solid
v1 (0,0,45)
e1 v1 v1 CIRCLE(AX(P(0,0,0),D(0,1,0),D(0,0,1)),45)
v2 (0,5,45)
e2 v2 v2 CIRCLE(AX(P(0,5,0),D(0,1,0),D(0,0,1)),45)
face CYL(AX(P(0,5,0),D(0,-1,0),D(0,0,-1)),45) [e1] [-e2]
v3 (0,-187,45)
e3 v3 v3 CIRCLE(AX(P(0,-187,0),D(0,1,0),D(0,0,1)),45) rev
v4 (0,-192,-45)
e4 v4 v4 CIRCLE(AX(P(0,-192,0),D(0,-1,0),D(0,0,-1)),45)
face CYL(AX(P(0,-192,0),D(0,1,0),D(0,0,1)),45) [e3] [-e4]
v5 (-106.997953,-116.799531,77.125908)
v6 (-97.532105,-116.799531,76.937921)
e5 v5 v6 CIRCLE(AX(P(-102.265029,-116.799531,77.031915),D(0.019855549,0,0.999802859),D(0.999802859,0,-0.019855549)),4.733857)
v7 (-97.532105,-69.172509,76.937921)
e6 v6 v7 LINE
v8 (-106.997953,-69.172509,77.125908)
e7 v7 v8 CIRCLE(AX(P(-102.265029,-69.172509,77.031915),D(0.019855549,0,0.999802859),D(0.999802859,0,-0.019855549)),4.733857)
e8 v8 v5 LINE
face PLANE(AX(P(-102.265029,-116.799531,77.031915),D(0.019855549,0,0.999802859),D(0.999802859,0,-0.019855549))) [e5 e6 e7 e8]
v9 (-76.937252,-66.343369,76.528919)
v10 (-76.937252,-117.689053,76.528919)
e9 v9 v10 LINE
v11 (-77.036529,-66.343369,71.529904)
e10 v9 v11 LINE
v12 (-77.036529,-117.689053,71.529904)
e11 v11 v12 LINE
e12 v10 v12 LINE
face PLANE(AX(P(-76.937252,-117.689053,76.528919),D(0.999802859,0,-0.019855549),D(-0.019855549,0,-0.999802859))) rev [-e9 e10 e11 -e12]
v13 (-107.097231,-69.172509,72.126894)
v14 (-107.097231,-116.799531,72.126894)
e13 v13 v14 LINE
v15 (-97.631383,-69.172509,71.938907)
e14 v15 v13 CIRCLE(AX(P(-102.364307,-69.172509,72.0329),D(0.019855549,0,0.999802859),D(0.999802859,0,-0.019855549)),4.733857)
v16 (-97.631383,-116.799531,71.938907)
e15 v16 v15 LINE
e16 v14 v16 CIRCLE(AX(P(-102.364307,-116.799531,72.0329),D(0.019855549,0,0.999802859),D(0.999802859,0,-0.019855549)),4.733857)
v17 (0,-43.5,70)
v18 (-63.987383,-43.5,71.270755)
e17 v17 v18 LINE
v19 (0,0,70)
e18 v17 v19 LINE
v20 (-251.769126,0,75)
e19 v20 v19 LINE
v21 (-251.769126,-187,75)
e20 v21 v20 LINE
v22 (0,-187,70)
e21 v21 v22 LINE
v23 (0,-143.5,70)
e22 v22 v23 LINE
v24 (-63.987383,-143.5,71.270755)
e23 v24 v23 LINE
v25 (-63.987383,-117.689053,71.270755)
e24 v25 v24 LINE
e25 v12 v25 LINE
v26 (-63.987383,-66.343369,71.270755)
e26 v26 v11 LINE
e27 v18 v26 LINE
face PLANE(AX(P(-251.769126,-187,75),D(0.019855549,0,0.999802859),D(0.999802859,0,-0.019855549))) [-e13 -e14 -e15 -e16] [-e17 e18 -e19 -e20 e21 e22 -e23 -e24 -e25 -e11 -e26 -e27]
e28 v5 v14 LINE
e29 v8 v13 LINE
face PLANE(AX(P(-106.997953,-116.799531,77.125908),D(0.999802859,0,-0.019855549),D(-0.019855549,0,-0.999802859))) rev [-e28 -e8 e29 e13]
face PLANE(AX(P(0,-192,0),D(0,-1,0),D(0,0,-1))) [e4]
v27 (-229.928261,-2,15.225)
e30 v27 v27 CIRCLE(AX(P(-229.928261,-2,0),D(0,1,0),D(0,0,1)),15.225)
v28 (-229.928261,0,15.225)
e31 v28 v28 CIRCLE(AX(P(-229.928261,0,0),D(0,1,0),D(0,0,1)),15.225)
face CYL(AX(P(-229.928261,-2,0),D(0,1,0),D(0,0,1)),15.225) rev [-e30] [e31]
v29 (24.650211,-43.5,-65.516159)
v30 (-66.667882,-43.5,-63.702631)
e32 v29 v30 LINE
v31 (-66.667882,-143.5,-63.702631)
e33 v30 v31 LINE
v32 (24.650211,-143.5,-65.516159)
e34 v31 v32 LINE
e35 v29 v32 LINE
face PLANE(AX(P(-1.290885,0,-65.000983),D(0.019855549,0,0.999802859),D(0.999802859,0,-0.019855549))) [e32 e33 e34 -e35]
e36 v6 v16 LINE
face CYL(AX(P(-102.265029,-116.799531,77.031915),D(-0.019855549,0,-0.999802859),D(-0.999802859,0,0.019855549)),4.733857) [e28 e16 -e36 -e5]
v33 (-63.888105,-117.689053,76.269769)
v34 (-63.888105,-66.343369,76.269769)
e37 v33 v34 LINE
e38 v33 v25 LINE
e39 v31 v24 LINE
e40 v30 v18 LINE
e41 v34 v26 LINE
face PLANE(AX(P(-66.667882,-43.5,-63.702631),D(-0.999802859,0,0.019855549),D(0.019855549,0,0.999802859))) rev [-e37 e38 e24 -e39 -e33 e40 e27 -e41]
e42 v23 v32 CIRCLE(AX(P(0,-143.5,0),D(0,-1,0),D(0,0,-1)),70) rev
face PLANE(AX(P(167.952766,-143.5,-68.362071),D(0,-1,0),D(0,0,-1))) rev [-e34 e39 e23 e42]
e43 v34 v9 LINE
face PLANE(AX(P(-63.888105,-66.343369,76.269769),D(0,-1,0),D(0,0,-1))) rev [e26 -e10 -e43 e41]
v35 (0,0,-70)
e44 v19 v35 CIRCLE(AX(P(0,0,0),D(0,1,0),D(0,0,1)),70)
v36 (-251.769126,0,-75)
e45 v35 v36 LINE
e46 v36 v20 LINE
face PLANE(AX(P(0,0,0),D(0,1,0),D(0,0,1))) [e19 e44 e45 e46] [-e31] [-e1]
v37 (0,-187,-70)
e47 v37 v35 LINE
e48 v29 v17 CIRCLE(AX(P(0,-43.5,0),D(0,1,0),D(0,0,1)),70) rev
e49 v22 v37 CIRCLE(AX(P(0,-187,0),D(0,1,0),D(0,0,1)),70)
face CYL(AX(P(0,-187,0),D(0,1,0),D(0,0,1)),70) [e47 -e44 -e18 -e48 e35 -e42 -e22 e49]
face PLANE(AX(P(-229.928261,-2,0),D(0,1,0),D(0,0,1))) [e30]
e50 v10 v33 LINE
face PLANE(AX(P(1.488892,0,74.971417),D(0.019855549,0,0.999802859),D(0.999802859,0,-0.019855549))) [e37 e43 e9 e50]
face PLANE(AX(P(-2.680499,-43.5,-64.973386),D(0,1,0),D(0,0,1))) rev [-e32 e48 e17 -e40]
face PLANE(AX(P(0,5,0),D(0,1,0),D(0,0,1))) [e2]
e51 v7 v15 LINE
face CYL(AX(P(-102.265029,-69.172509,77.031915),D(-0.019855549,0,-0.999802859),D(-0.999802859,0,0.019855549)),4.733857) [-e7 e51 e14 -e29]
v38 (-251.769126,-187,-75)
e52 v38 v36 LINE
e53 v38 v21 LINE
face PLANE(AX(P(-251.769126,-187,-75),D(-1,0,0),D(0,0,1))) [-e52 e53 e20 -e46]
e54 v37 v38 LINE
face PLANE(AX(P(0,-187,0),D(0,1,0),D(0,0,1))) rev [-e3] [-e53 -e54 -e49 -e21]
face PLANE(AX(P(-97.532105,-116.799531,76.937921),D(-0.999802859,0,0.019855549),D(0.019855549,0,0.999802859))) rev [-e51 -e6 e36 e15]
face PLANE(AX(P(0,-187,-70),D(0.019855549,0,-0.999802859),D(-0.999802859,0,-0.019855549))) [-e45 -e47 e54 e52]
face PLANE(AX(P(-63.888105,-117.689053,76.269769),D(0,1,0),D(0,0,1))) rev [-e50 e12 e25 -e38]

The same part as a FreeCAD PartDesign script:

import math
import FreeCAD as App
import Part
import Sketcher
from FreeCAD import Vector
Q = App.Units.Quantity


def add_polygon(sketch, points):
    """Adds a closed chain of lines whose ends are joined by coincident constraints."""
    first, n = sketch.GeometryCount, len(points)
    for a, b in zip(points, points[1:] + points[:1]):
        sketch.addGeometry(Part.LineSegment(App.Vector(*a, 0), App.Vector(*b, 0)), False)
    for i in range(n):
        sketch.addConstraint(Sketcher.Constraint("Coincident", first + i, 2, first + (i + 1) % n, 1))

doc = App.newDocument("Part")
body = doc.addObject("PartDesign::Body", "Body")

sketch1 = body.newObject("Sketcher::SketchObject", "Sketch")
sketch1.AttachmentSupport = (doc.getObject("XZ_Plane"), [""])
sketch1.MapMode = "FlatFace"
sketch1.addGeometry(Part.LineSegment(Vector(0, -70, 0), Vector(-252, -75, 0)), False)
sketch1.addGeometry(Part.LineSegment(Vector(-252, -75, 0), Vector(-252, 75, 0)), False)
sketch1.addGeometry(Part.LineSegment(Vector(-252, 75, 0), Vector(0, 70, 0)), False)
sketch1.addGeometry(Part.ArcOfCircle(Part.Circle(Vector(0, 0, 0), Vector(0, 0, 1), 70), math.radians(-90), math.radians(90)), False)
sketch1.addConstraint(Sketcher.Constraint("Coincident", 0, 2, 1, 1))
sketch1.addConstraint(Sketcher.Constraint("Coincident", 1, 2, 2, 1))
sketch1.addConstraint(Sketcher.Constraint("Coincident", 2, 2, 3, 2))
sketch1.addConstraint(Sketcher.Constraint("Coincident", 3, 1, 0, 1))
sketch1.addConstraint(Sketcher.Constraint("Vertical", 1))
sketch1.addConstraint(Sketcher.Constraint("Coincident", 3, 3, -1, 1))
sketch1.addConstraint(Sketcher.Constraint("PointOnObject", 2, 2, -2))
sketch1.addConstraint(Sketcher.Constraint("PointOnObject", 3, 1, -2))
sketch1.addConstraint(Sketcher.Constraint("Equal", 0, 2))
sketch1.addConstraint(Sketcher.Constraint("Radius", 3, Q("70 mm")))
sketch1.addConstraint(Sketcher.Constraint("DistanceY", 1, 1, 1, 2, Q("150 mm")))
sketch1.addConstraint(Sketcher.Constraint("Distance", 0, Q("251.818769 mm")))
pad1 = body.newObject("PartDesign::Pad", "Pad")
pad1.Profile = sketch1
pad1.Length = 187

sketch2 = body.newObject("Sketcher::SketchObject", "Sketch001")
sketch2.Placement = App.Placement(Vector(1.389614, 0, 69.972403), App.Rotation(Vector(0.999802859, 0, -0.019855549), Vector(0, 1, 0), Vector(0.019855549, 0, 0.999802859), "ZXY"))
add_polygon(sketch2, [(169, -43), (-65, -43), (-65, -143), (169, -143)])
sketch2.addConstraint(Sketcher.Constraint("Horizontal", 0))
sketch2.addConstraint(Sketcher.Constraint("Vertical", 1))
sketch2.addConstraint(Sketcher.Constraint("Horizontal", 2))
sketch2.addConstraint(Sketcher.Constraint("Vertical", 3))
sketch2.addConstraint(Sketcher.Constraint("DistanceY", 1, 2, 1, 1, Q("100 mm")))
sketch2.addConstraint(Sketcher.Constraint("DistanceY", 0, 2, -1, 1, Q("43.5 mm")))
sketch2.addConstraint(Sketcher.Constraint("DistanceX", 0, 2, 0, 1, Q("234.666911 mm")))
sketch2.addConstraint(Sketcher.Constraint("DistanceX", 0, 2, -1, 1, Q("65.389888 mm")))
pocket1 = body.newObject("PartDesign::Pocket", "Pocket")
pocket1.Profile = sketch2
pocket1.Length = 135

sketch3 = body.newObject("Sketcher::SketchObject", "Sketch002")
sketch3.Placement = App.Placement(Vector(-1.290885, 0, -65.000983), App.Rotation(Vector(0.999802859, 0, -0.019855549), Vector(0, 1, 0), Vector(0.019855549, 0, 0.999802859), "ZXY"))
add_polygon(sketch3, [(-65, -43), (-65, -143), (144, -143), (144, -43)])
sketch3.addConstraint(Sketcher.Constraint("Vertical", 0))
sketch3.addConstraint(Sketcher.Constraint("Horizontal", 1))
sketch3.addConstraint(Sketcher.Constraint("Vertical", 2))
sketch3.addConstraint(Sketcher.Constraint("Horizontal", 3))
sketch3.addConstraint(Sketcher.Constraint("DistanceY", 0, 2, 0, 1, Q("100 mm")))
sketch3.addConstraint(Sketcher.Constraint("DistanceY", 0, 2, -1, 1, Q("143.5 mm")))
sketch3.addConstraint(Sketcher.Constraint("DistanceX", 1, 1, 1, 2, Q("208.903758 mm")))
sketch3.addConstraint(Sketcher.Constraint("DistanceX", 0, 2, -1, 1, Q("65.389888 mm")))
pocket2 = body.newObject("PartDesign::Pocket", "Pocket001")
pocket2.Profile = sketch3
pocket2.Length = 175
pocket2.Reversed = True

sketch4 = body.newObject("Sketcher::SketchObject", "Sketch003")
sketch4.AttachmentSupport = (doc.getObject("XZ_Plane"), [""])
sketch4.MapMode = "FlatFace"
sketch4.addGeometry(Part.Circle(Vector(0, 0, 0), Vector(0, 0, 1), 45), False)
sketch4.addConstraint(Sketcher.Constraint("Coincident", 0, 3, -1, 1))
sketch4.addConstraint(Sketcher.Constraint("Diameter", 0, Q("90 mm")))
pad2 = body.newObject("PartDesign::Pad", "Pad001")
pad2.Profile = sketch4
pad2.Length = 5
pad2.Reversed = True

sketch5 = body.newObject("Sketcher::SketchObject", "Sketch004")
sketch5.AttachmentSupport = (doc.getObject("XZ_Plane"), [""])
sketch5.MapMode = "FlatFace"
sketch5.AttachmentOffset = App.Placement(Vector(0, 0, 192), App.Rotation())
sketch5.addGeometry(Part.Circle(Vector(0, 0, 0), Vector(0, 0, 1), 45), False)
sketch5.addConstraint(Sketcher.Constraint("Coincident", 0, 3, -1, 1))
sketch5.addConstraint(Sketcher.Constraint("Diameter", 0, Q("90 mm")))
pad3 = body.newObject("PartDesign::Pad", "Pad002")
pad3.Profile = sketch5
pad3.Length = 5
pad3.Reversed = True

sketch6 = body.newObject("Sketcher::SketchObject", "Sketch005")
sketch6.Placement = App.Placement(Vector(1.389614, 0, 69.972403), App.Rotation(Vector(0.999802859, 0, -0.019855549), Vector(0, 1, 0), Vector(0.019855549, 0, 0.999802859), "ZXY"))
add_polygon(sketch6, [(-78, -66), (-78, -118), (-65, -118), (-65, -66)])
sketch6.addConstraint(Sketcher.Constraint("Vertical", 0))
sketch6.addConstraint(Sketcher.Constraint("Horizontal", 1))
sketch6.addConstraint(Sketcher.Constraint("Vertical", 2))
sketch6.addConstraint(Sketcher.Constraint("Horizontal", 3))
sketch6.addConstraint(Sketcher.Constraint("DistanceX", 1, 1, 1, 2, Q("13.051719 mm")))
sketch6.addConstraint(Sketcher.Constraint("DistanceY", 0, 2, 0, 1, Q("51.345684 mm")))
sketch6.addConstraint(Sketcher.Constraint("DistanceX", 1, 2, -1, 1, Q("65.389888 mm")))
sketch6.addConstraint(Sketcher.Constraint("DistanceY", 2, 2, -1, 1, Q("66.343369 mm")))
pad4 = body.newObject("PartDesign::Pad", "Pad003")
pad4.Profile = sketch6
pad4.Length = 5

sketch7 = body.newObject("Sketcher::SketchObject", "Sketch006")
sketch7.Placement = App.Placement(Vector(1.389614, 0, 69.972403), App.Rotation(Vector(0.999802859, 0, -0.019855549), Vector(0, 1, 0), Vector(0.019855549, 0, 0.999802859), "ZXY"))
sketch7.addGeometry(Part.LineSegment(Vector(-108.5, -69.2, 0), Vector(-108.5, -116.8, 0)), False)
sketch7.addGeometry(Part.ArcOfCircle(Part.Circle(Vector(-103.8, -116.8, 0), Vector(0, 0, 1), 4.7), math.radians(180), math.radians(360)), False)
sketch7.addGeometry(Part.LineSegment(Vector(-99, -116.8, 0), Vector(-99, -69.2, 0)), False)
sketch7.addGeometry(Part.ArcOfCircle(Part.Circle(Vector(-103.8, -69.2, 0), Vector(0, 0, 1), 4.7), math.radians(0), math.radians(180)), False)
sketch7.addConstraint(Sketcher.Constraint("Tangent", 0, 2, 1, 1))
sketch7.addConstraint(Sketcher.Constraint("Tangent", 1, 2, 2, 1))
sketch7.addConstraint(Sketcher.Constraint("Tangent", 2, 2, 3, 1))
sketch7.addConstraint(Sketcher.Constraint("Tangent", 3, 2, 0, 1))
sketch7.addConstraint(Sketcher.Constraint("Vertical", 0))
sketch7.addConstraint(Sketcher.Constraint("Vertical", 2))
sketch7.addConstraint(Sketcher.Constraint("Radius", 1, Q("4.733857 mm")))
sketch7.addConstraint(Sketcher.Constraint("DistanceY", 0, 2, 0, 1, Q("47.627022 mm")))
sketch7.addConstraint(Sketcher.Constraint("DistanceX", 1, 3, -1, 1, Q("103.774379 mm")))
sketch7.addConstraint(Sketcher.Constraint("DistanceY", 1, 3, -1, 1, Q("116.799531 mm")))
pad5 = body.newObject("PartDesign::Pad", "Pad004")
pad5.Profile = sketch7
pad5.Length = 5

sketch8 = body.newObject("Sketcher::SketchObject", "Sketch007")
sketch8.AttachmentSupport = (doc.getObject("XZ_Plane"), [""])
sketch8.MapMode = "FlatFace"
sketch8.addGeometry(Part.Circle(Vector(-230, 0, 0), Vector(0, 0, 1), 15), False)
sketch8.addConstraint(Sketcher.Constraint("PointOnObject", 0, 3, -1))
sketch8.addConstraint(Sketcher.Constraint("Diameter", 0, Q("30.45 mm")))
sketch8.addConstraint(Sketcher.Constraint("DistanceX", 0, 3, -1, 1, Q("229.928261 mm")))
pocket3 = body.newObject("PartDesign::Pocket", "Pocket002")
pocket3.Profile = sketch8
pocket3.Length = 2
pocket3.Reversed = True

doc.recompute()
